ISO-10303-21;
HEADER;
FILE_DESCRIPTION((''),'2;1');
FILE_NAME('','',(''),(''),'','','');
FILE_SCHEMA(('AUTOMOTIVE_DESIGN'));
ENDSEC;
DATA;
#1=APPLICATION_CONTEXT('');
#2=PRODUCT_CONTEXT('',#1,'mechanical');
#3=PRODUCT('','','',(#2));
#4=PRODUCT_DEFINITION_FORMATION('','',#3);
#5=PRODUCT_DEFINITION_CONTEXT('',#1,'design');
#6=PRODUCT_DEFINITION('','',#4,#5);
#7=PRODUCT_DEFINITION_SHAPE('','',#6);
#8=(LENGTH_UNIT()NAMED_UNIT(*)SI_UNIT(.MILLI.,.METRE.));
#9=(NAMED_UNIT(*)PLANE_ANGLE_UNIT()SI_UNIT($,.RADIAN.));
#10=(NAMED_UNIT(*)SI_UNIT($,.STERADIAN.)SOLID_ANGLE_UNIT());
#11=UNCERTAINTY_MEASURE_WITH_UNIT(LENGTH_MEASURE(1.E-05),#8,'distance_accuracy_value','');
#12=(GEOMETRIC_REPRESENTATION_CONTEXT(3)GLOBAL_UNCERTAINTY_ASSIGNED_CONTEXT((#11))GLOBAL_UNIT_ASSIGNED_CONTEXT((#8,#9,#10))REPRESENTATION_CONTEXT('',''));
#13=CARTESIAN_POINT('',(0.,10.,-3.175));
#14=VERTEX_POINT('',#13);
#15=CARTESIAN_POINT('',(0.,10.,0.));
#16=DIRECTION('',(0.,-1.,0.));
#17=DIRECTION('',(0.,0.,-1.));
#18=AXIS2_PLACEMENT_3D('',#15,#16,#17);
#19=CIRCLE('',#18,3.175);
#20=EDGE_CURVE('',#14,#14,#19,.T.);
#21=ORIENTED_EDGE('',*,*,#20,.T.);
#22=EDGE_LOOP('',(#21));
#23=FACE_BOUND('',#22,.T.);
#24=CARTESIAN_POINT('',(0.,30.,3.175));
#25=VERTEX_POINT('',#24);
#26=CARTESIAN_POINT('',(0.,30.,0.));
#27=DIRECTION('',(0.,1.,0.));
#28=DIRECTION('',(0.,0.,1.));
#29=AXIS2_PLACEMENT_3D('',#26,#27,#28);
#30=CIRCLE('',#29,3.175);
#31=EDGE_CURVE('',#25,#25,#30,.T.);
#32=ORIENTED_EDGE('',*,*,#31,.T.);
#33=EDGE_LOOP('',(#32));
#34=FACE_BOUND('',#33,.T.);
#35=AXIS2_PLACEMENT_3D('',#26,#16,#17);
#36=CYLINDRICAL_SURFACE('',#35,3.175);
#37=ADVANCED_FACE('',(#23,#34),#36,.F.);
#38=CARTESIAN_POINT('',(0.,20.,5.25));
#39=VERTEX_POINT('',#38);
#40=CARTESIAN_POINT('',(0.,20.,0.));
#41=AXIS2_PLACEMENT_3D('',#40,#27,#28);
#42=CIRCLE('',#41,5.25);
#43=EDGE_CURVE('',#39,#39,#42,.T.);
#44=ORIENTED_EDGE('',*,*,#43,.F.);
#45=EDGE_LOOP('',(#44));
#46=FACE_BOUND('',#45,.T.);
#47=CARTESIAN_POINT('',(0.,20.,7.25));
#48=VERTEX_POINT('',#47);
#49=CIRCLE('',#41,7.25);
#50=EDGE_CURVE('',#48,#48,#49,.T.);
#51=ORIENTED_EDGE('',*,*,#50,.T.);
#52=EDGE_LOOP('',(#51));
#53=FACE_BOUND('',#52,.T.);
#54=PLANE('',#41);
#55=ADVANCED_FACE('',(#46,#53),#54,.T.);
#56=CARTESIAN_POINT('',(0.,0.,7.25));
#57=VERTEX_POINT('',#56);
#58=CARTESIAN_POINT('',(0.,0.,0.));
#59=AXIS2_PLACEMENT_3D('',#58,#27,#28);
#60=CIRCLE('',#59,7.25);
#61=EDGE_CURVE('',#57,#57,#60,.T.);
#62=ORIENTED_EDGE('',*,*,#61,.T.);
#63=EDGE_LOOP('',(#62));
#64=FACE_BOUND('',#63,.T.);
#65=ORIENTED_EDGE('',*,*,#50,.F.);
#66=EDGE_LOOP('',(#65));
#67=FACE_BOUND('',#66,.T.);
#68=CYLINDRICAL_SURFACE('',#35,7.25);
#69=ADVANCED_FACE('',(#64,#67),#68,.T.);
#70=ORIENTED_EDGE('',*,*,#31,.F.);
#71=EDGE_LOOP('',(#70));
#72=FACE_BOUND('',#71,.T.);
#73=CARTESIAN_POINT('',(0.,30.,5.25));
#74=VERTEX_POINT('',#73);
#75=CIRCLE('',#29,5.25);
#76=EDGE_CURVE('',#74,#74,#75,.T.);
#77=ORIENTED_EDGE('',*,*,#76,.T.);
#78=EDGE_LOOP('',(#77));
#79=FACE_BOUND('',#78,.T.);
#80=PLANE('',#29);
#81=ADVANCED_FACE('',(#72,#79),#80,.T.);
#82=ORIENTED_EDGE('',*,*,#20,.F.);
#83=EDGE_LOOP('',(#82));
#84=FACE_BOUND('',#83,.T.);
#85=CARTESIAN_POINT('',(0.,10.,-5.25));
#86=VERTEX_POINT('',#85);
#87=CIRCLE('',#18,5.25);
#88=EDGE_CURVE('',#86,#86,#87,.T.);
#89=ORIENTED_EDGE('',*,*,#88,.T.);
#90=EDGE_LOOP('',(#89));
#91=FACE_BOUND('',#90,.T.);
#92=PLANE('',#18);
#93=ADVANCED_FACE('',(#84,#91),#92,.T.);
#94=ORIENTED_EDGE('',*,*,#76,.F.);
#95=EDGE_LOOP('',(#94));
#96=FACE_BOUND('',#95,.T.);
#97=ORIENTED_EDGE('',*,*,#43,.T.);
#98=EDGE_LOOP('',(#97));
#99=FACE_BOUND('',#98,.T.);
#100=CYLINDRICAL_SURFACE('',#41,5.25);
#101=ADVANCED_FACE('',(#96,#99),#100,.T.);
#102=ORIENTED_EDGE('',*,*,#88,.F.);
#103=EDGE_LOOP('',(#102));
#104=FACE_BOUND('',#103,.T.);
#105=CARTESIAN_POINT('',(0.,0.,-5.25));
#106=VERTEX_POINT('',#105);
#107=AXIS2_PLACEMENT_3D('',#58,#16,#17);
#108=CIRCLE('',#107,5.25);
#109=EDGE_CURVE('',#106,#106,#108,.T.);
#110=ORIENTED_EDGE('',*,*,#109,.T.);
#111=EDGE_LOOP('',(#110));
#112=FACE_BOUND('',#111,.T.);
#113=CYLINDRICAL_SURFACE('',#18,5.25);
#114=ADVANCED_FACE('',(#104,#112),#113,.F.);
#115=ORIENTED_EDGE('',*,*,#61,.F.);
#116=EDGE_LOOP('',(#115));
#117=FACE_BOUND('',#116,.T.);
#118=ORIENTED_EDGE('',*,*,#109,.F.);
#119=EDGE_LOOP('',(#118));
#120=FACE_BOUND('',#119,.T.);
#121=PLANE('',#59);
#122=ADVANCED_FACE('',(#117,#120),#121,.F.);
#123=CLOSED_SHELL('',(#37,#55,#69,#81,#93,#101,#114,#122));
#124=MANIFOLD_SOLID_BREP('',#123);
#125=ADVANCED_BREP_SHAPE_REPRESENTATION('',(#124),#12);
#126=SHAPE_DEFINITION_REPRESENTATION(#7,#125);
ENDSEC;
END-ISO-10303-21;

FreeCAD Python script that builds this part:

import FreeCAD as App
import Part
import Sketcher

V = App.Vector


def add_polygon(sketch, points):
    """Adds a closed chain of lines whose ends are joined by coincident constraints."""
    first, n = sketch.GeometryCount, len(points)
    for a, b in zip(points, points[1:] + points[:1]):
        sketch.addGeometry(Part.LineSegment(App.Vector(*a, 0), App.Vector(*b, 0)), False)
    for i in range(n):
        sketch.addConstraint(Sketcher.Constraint("Coincident", first + i, 2, first + (i + 1) % n, 1))

doc = App.newDocument("Part")
body = doc.addObject("PartDesign::Body", "Body")

# Sketch on XZ plane
sketch1 = body.newObject("Sketcher::SketchObject", "Sketch")
sketch1.AttachmentSupport = (doc.getObject("XZ_Plane"), [""])
sketch1.MapMode = "FlatFace"
sketch1.addGeometry([
    Part.Circle(V(0, 0, 0), V(0, 0, 1), 7.25),
    Part.Circle(V(0, 0, 0), V(0, 0, 1), 3.175),
], False)
sketch1.addConstraint([
    Sketcher.Constraint("Coincident", 0, 3, -1, 1),
    Sketcher.Constraint("Coincident", 1, 3, -1, 1),
    Sketcher.Constraint("Diameter", 0, 14.5),
    Sketcher.Constraint("Diameter", 1, 6.35),
])
pad1 = body.newObject("PartDesign::Pad", "Pad")
pad1.Profile = sketch1
pad1.Length = 30
pad1.Reversed = True

# Sketch on XZ plane
sketch2 = body.newObject("Sketcher::SketchObject", "Sketch001")
sketch2.AttachmentSupport = (doc.getObject("XZ_Plane"), [""])
sketch2.MapMode = "FlatFace"
sketch2.AttachmentOffset = App.Placement(V(0, 0, -30), App.Rotation())
add_polygon(sketch2, [(-11.884, -11.884), (-11.884, 11.884), (11.884, 11.884), (11.884, -11.884)])  # lines 0-3
sketch2.addGeometry(Part.Circle(V(0, 0, 0), V(0, 0, 1), 5.25), False)  # 4
sketch2.addConstraint([
    Sketcher.Constraint("Vertical", 0),
    Sketcher.Constraint("Horizontal", 1),
    Sketcher.Constraint("Vertical", 2),
    Sketcher.Constraint("Horizontal", 3),
    Sketcher.Constraint("Coincident", 4, 3, -1, 1),
    Sketcher.Constraint("Symmetric", 0, 2, 2, 2, -1, 1),
    Sketcher.Constraint("Equal", 3, 0),
    Sketcher.Constraint("Diameter", 4, 10.5),
    Sketcher.Constraint("DistanceX", 1, 1, 1, 2, 23.768),
])
pocket1 = body.newObject("PartDesign::Pocket", "Pocket")
pocket1.Profile = sketch2
pocket1.Length = 10
pocket1.Reversed = True

# Sketch on XZ plane
sketch3 = body.newObject("Sketcher::SketchObject", "Sketch002")
sketch3.AttachmentSupport = (doc.getObject("XZ_Plane"), [""])
sketch3.MapMode = "FlatFace"
sketch3.addGeometry(Part.Circle(V(0, 0, 0), V(0, 0, 1), 5.25), False)
sketch3.addConstraint([
    Sketcher.Constraint("Coincident", 0, 3, -1, 1),
    Sketcher.Constraint("Diameter", 0, 10.5),
])
pocket2 = body.newObject("PartDesign::Pocket", "Pocket001")
pocket2.Profile = sketch3
pocket2.Length = 10

doc.recompute()
